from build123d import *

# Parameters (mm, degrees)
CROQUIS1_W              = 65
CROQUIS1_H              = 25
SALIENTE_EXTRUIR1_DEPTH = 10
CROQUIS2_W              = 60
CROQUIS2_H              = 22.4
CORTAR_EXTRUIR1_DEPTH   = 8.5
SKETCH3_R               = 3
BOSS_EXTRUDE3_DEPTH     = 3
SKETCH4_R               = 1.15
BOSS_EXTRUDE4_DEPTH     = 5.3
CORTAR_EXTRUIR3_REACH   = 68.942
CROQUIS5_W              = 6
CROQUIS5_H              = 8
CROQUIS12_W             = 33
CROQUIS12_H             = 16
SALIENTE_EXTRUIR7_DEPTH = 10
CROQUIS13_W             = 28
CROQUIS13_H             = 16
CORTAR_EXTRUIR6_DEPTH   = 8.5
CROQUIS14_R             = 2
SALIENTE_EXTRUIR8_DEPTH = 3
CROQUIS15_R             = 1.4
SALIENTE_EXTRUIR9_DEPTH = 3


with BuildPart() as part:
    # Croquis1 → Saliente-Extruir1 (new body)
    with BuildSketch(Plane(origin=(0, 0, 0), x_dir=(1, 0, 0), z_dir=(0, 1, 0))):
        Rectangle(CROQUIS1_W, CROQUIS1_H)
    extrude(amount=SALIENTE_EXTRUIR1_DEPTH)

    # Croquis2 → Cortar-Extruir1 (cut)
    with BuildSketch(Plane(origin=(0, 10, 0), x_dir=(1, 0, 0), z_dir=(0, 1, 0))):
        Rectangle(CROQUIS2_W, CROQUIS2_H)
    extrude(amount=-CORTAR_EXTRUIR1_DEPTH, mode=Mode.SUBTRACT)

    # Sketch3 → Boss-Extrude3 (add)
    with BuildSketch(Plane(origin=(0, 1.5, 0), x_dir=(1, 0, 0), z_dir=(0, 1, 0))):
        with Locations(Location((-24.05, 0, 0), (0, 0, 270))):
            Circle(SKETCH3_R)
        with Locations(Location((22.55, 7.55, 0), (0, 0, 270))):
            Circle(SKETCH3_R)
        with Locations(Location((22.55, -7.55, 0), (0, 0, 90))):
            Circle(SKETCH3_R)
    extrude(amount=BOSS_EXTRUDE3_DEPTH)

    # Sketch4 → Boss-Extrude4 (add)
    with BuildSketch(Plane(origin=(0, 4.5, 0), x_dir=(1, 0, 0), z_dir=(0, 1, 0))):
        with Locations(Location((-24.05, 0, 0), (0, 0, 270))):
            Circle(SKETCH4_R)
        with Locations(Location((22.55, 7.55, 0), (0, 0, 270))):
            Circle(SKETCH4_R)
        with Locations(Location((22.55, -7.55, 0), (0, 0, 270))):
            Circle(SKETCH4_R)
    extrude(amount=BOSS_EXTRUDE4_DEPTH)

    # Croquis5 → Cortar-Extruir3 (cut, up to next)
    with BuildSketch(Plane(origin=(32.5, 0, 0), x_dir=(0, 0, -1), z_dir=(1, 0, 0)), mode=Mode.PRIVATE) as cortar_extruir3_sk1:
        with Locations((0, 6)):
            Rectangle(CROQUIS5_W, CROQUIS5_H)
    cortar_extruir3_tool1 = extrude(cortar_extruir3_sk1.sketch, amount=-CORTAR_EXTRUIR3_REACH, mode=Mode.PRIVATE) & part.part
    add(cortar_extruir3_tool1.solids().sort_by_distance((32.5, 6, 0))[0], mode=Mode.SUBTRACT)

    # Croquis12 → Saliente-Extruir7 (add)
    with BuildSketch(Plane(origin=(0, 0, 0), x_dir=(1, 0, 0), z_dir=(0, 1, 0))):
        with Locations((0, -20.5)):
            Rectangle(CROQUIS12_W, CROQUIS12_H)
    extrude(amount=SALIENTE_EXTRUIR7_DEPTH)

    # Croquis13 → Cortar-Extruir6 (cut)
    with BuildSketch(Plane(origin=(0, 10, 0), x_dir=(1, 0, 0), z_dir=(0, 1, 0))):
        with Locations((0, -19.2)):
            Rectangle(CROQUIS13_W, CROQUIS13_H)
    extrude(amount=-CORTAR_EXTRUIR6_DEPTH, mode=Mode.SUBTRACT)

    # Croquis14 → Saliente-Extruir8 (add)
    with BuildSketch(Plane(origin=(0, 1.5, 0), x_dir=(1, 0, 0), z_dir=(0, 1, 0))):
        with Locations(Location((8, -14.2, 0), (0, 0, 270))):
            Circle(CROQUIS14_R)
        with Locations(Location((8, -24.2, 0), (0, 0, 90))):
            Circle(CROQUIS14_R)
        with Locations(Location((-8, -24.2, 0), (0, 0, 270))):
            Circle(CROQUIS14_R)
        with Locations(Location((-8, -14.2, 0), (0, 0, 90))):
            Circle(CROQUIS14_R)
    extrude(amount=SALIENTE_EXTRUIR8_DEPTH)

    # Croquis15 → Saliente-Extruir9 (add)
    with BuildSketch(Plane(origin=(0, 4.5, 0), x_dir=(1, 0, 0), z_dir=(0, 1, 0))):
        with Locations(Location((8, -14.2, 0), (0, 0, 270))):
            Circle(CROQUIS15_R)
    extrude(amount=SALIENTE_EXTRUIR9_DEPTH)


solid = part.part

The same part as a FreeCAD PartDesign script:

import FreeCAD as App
import Part
import Sketcher

V = App.Vector
Q = App.Units.Quantity


def add_polygon(sketch, points):
    """Adds a closed chain of lines whose ends are joined by coincident constraints."""
    first, n = sketch.GeometryCount, len(points)
    for a, b in zip(points, points[1:] + points[:1]):
        sketch.addGeometry(Part.LineSegment(App.Vector(*a, 0), App.Vector(*b, 0)), False)
    for i in range(n):
        sketch.addConstraint(Sketcher.Constraint("Coincident", first + i, 2, first + (i + 1) % n, 1))

doc = App.newDocument("Part")
params = doc.addObject("Spreadsheet::Sheet", "Params")
for row, (alias, value) in enumerate([
    ("sketch1_width", "65 mm"),
    ("sketch1_height", "25 mm"),
    ("pad1_length", "10 mm"),
    ("sketch2_width", "60 mm"),
    ("sketch2_height", "22.4 mm"),
    ("pocket1_length", "8.5 mm"),
    ("sketch3_diameter", "6 mm"),
    ("pad2_length", "3 mm"),
    ("sketch4_diameter", "2.3 mm"),
    ("pad3_length", "5.3 mm"),
    ("sketch5_width", "8 mm"),
    ("sketch5_height", "6 mm"),
    ("sketch6_width", "33 mm"),
    ("sketch6_height", "16 mm"),
    ("pad4_length", "10 mm"),
    ("sketch7_width", "28 mm"),
    ("sketch7_height", "16 mm"),
    ("pocket3_length", "8.5 mm"),
    ("sketch8_diameter", "4 mm"),
    ("pad5_length", "3 mm"),
    ("sketch9_diameter", "2.8 mm"),
    ("pad6_length", "3 mm"),
], start=1):
    params.set(f"A{row}", alias)
    params.set(f"B{row}", "=" + value)
    params.setAlias(f"B{row}", alias)

body = doc.addObject("PartDesign::Body", "Body")

# Sketch on XZ plane
sketch1 = doc.addObject("Sketcher::SketchObject", "Sketch")
body.addObject(sketch1)
sketch1.AttachmentSupport = (doc.XZ_Plane, [""])
sketch1.MapMode = "FlatFace"
add_polygon(sketch1, [(-32.5, -12.5), (-32.5, 12.5), (32.5, 12.5), (32.5, -12.5)])  # lines 0-3
sketch1.addConstraint([
    Sketcher.Constraint("Vertical", 0),
    Sketcher.Constraint("Horizontal", 1),
    Sketcher.Constraint("Vertical", 2),
    Sketcher.Constraint("Horizontal", 3),
    Sketcher.Constraint("Symmetric", 0, 2, 2, 2, -1, 1),
    Sketcher.Constraint("DistanceX", 1, 1, 1, 2, Q("65 mm")),
    Sketcher.Constraint("DistanceY", 0, 1, 0, 2, Q("25 mm")),
])
sketch1.setExpression("Constraints[9]", "Params.sketch1_width")
sketch1.setExpression("Constraints[10]", "Params.sketch1_height")
pad1 = doc.addObject("PartDesign::Pad", "Pad")
body.addObject(pad1)
pad1.Profile = sketch1
pad1.setExpression("Length", "Params.pad1_length")
pad1.Reversed = True

# Sketch on XZ plane
sketch2 = doc.addObject("Sketcher::SketchObject", "Sketch001")
body.addObject(sketch2)
sketch2.AttachmentSupport = (doc.XZ_Plane, [""])
sketch2.MapMode = "FlatFace"
sketch2.AttachmentOffset = App.Placement(V(0, 0, -10), App.Rotation())
add_polygon(sketch2, [(-30, -11.2), (-30, 11.2), (30, 11.2), (30, -11.2)])  # lines 0-3
sketch2.addConstraint([
    Sketcher.Constraint("Vertical", 0),
    Sketcher.Constraint("Horizontal", 1),
    Sketcher.Constraint("Vertical", 2),
    Sketcher.Constraint("Horizontal", 3),
    Sketcher.Constraint("Symmetric", 0, 2, 2, 2, -1, 1),
    Sketcher.Constraint("DistanceX", 1, 1, 1, 2, Q("60 mm")),
    Sketcher.Constraint("DistanceY", 0, 1, 0, 2, Q("22.4 mm")),
])
sketch2.setExpression("Constraints[9]", "Params.sketch2_width")
sketch2.setExpression("Constraints[10]", "Params.sketch2_height")
pocket1 = doc.addObject("PartDesign::Pocket", "Pocket")
body.addObject(pocket1)
pocket1.Profile = sketch2
pocket1.setExpression("Length", "Params.pocket1_length")
pocket1.Reversed = True

# Sketch on XZ plane
sketch3 = doc.addObject("Sketcher::SketchObject", "Sketch002")
body.addObject(sketch3)
sketch3.AttachmentSupport = (doc.XZ_Plane, [""])
sketch3.MapMode = "FlatFace"
sketch3.AttachmentOffset = App.Placement(V(0, 0, -1.5), App.Rotation())
sketch3.addGeometry([
    Part.Circle(V(-24.05, 0, 0), V(0, 0, 1), 3),
    Part.Circle(V(22.55, -7.55, 0), V(0, 0, 1), 3),
    Part.Circle(V(22.55, 7.55, 0), V(0, 0, 1), 3),
], False)
sketch3.addConstraint([
    Sketcher.Constraint("Equal", 0, 1),
    Sketcher.Constraint("Equal", 1, 2),
    Sketcher.Constraint("Symmetric", 1, 3, 2, 3, -1),
    Sketcher.Constraint("PointOnObject", 0, 3, -1),
    Sketcher.Constraint("Diameter", 0, Q("6 mm")),
    Sketcher.Constraint("DistanceX", 0, 3, 1, 3, Q("46.6 mm")),
    Sketcher.Constraint("DistanceY", 1, 3, 2, 3, Q("15.1 mm")),
    Sketcher.Constraint("DistanceX", 0, 3, -1, 1, Q("24.05 mm")),
])
sketch3.setExpression("Constraints[4]", "Params.sketch3_diameter")
pad2 = doc.addObject("PartDesign::Pad", "Pad001")
body.addObject(pad2)
pad2.Profile = sketch3
pad2.setExpression("Length", "Params.pad2_length")
pad2.Reversed = True

# Sketch on XZ plane
sketch4 = doc.addObject("Sketcher::SketchObject", "Sketch003")
body.addObject(sketch4)
sketch4.AttachmentSupport = (doc.XZ_Plane, [""])
sketch4.MapMode = "FlatFace"
sketch4.AttachmentOffset = App.Placement(V(0, 0, -4.5), App.Rotation())
sketch4.addGeometry([
    Part.Circle(V(-24.05, 0, 0), V(0, 0, 1), 1.15),
    Part.Circle(V(22.55, -7.55, 0), V(0, 0, 1), 1.15),
    Part.Circle(V(22.55, 7.55, 0), V(0, 0, 1), 1.15),
], False)
sketch4.addConstraint([
    Sketcher.Constraint("Equal", 0, 1),
    Sketcher.Constraint("Equal", 1, 2),
    Sketcher.Constraint("Symmetric", 1, 3, 2, 3, -1),
    Sketcher.Constraint("PointOnObject", 0, 3, -1),
    Sketcher.Constraint("Diameter", 0, Q("2.3 mm")),
    Sketcher.Constraint("DistanceX", 0, 3, 1, 3, Q("46.6 mm")),
    Sketcher.Constraint("DistanceY", 1, 3, 2, 3, Q("15.1 mm")),
    Sketcher.Constraint("DistanceX", 0, 3, -1, 1, Q("24.05 mm")),
])
sketch4.setExpression("Constraints[4]", "Params.sketch4_diameter")
pad3 = doc.addObject("PartDesign::Pad", "Pad002")
body.addObject(pad3)
pad3.Profile = sketch4
pad3.setExpression("Length", "Params.pad3_length")
pad3.Reversed = True

# Sketch on YZ plane
sketch5 = doc.addObject("Sketcher::SketchObject", "Sketch004")
body.addObject(sketch5)
sketch5.AttachmentSupport = (doc.YZ_Plane, [""])
sketch5.MapMode = "FlatFace"
sketch5.AttachmentOffset = App.Placement(V(0, 0, 32.5), App.Rotation())
add_polygon(sketch5, [(10, 3), (2, 3), (2, -3), (10, -3)])  # lines 0-3
sketch5.addConstraint([
    Sketcher.Constraint("Horizontal", 0),
    Sketcher.Constraint("Vertical", 1),
    Sketcher.Constraint("Horizontal", 2),
    Sketcher.Constraint("Vertical", 3),
    Sketcher.Constraint("DistanceX", 0, 2, 0, 1, Q("8 mm")),
    Sketcher.Constraint("DistanceY", 1, 2, 1, 1, Q("6 mm")),
    Sketcher.Constraint("DistanceX", -1, 1, 0, 2, Q("2 mm")),
    Sketcher.Constraint("DistanceY", -1, 1, 0, 2, Q("3 mm")),
])
sketch5.setExpression("Constraints[8]", "Params.sketch5_width")
sketch5.setExpression("Constraints[9]", "Params.sketch5_height")
pocket2 = doc.addObject("PartDesign::Pocket", "Pocket001")
body.addObject(pocket2)
pocket2.Profile = sketch5
pocket2.Type = "UpToFirst"

# Sketch on XZ plane
sketch6 = doc.addObject("Sketcher::SketchObject", "Sketch005")
body.addObject(sketch6)
sketch6.AttachmentSupport = (doc.XZ_Plane, [""])
sketch6.MapMode = "FlatFace"
add_polygon(sketch6, [(-16.5, 12.5), (-16.5, 28.5), (16.5, 28.5), (16.5, 12.5)])  # lines 0-3
sketch6.addConstraint([
    Sketcher.Constraint("Vertical", 0),
    Sketcher.Constraint("Horizontal", 1),
    Sketcher.Constraint("Vertical", 2),
    Sketcher.Constraint("Horizontal", 3),
    Sketcher.Constraint("DistanceX", 1, 1, 1, 2, Q("33 mm")),
    Sketcher.Constraint("DistanceY", 0, 1, 0, 2, Q("16 mm")),
    Sketcher.Constraint("DistanceX", 0, 2, -1, 1, Q("16.5 mm")),
    Sketcher.Constraint("DistanceY", -1, 1, 0, 2, Q("28.5 mm")),
])
sketch6.setExpression("Constraints[8]", "Params.sketch6_width")
sketch6.setExpression("Constraints[9]", "Params.sketch6_height")
pad4 = doc.addObject("PartDesign::Pad", "Pad003")
body.addObject(pad4)
pad4.Profile = sketch6
pad4.setExpression("Length", "Params.pad4_length")
pad4.Reversed = True

# Sketch on XZ plane
sketch7 = doc.addObject("Sketcher::SketchObject", "Sketch006")
body.addObject(sketch7)
sketch7.AttachmentSupport = (doc.XZ_Plane, [""])
sketch7.MapMode = "FlatFace"
sketch7.AttachmentOffset = App.Placement(V(0, 0, -10), App.Rotation())
add_polygon(sketch7, [(-14, 11.2), (-14, 27.2), (14, 27.2), (14, 11.2)])  # lines 0-3
sketch7.addConstraint([
    Sketcher.Constraint("Vertical", 0),
    Sketcher.Constraint("Horizontal", 1),
    Sketcher.Constraint("Vertical", 2),
    Sketcher.Constraint("Horizontal", 3),
    Sketcher.Constraint("DistanceX", 1, 1, 1, 2, Q("28 mm")),
    Sketcher.Constraint("DistanceY", 0, 1, 0, 2, Q("16 mm")),
    Sketcher.Constraint("DistanceX", 0, 2, -1, 1, Q("14 mm")),
    Sketcher.Constraint("DistanceY", -1, 1, 0, 2, Q("27.2 mm")),
])
sketch7.setExpression("Constraints[8]", "Params.sketch7_width")
sketch7.setExpression("Constraints[9]", "Params.sketch7_height")
pocket3 = doc.addObject("PartDesign::Pocket", "Pocket002")
body.addObject(pocket3)
pocket3.Profile = sketch7
pocket3.setExpression("Length", "Params.pocket3_length")
pocket3.Reversed = True

# Sketch on XZ plane
sketch8 = doc.addObject("Sketcher::SketchObject", "Sketch007")
body.addObject(sketch8)
sketch8.AttachmentSupport = (doc.XZ_Plane, [""])
sketch8.MapMode = "FlatFace"
sketch8.AttachmentOffset = App.Placement(V(0, 0, -1.5), App.Rotation())
sketch8.addGeometry([
    Part.Circle(V(8, 14.2, 0), V(0, 0, 1), 2),
    Part.Circle(V(8, 24.2, 0), V(0, 0, 1), 2),
    Part.Circle(V(-8, 24.2, 0), V(0, 0, 1), 2),
    Part.Circle(V(-8, 14.2, 0), V(0, 0, 1), 2),
], False)
sketch8.addConstraint([
    Sketcher.Constraint("Equal", 0, 1),
    Sketcher.Constraint("Equal", 1, 2),
    Sketcher.Constraint("Equal", 2, 3),
    Sketcher.Constraint("Symmetric", 1, 3, 2, 3, -2),
    Sketcher.Constraint("Symmetric", 0, 3, 3, 3, -2),
    Sketcher.Constraint("Vertical", 0, 3, 1, 3),
    Sketcher.Constraint("Diameter", 0, Q("4 mm")),
    Sketcher.Constraint("DistanceX", -1, 1, 0, 3, Q("8 mm")),
    Sketcher.Constraint("DistanceY", 0, 3, 1, 3, Q("10 mm")),
    Sketcher.Constraint("DistanceY", -1, 1, 0, 3, Q("14.2 mm")),
])
sketch8.setExpression("Constraints[6]", "Params.sketch8_diameter")
pad5 = doc.addObject("PartDesign::Pad", "Pad004")
body.addObject(pad5)
pad5.Profile = sketch8
pad5.setExpression("Length", "Params.pad5_length")
pad5.Reversed = True

# Sketch on XZ plane
sketch9 = doc.addObject("Sketcher::SketchObject", "Sketch008")
body.addObject(sketch9)
sketch9.AttachmentSupport = (doc.XZ_Plane, [""])
sketch9.MapMode = "FlatFace"
sketch9.AttachmentOffset = App.Placement(V(0, 0, -4.5), App.Rotation())
sketch9.addGeometry(Part.Circle(V(8, 14.2, 0), V(0, 0, 1), 1.4), False)
sketch9.addConstraint([
    Sketcher.Constraint("Diameter", 0, Q("2.8 mm")),
    Sketcher.Constraint("DistanceX", -1, 1, 0, 3, Q("8 mm")),
    Sketcher.Constraint("DistanceY", -1, 1, 0, 3, Q("14.2 mm")),
])
sketch9.setExpression("Constraints[0]", "Params.sketch9_diameter")
pad6 = doc.addObject("PartDesign::Pad", "Pad005")
body.addObject(pad6)
pad6.Profile = sketch9
pad6.setExpression("Length", "Params.pad6_length")
pad6.Reversed = True

doc.recompute()
